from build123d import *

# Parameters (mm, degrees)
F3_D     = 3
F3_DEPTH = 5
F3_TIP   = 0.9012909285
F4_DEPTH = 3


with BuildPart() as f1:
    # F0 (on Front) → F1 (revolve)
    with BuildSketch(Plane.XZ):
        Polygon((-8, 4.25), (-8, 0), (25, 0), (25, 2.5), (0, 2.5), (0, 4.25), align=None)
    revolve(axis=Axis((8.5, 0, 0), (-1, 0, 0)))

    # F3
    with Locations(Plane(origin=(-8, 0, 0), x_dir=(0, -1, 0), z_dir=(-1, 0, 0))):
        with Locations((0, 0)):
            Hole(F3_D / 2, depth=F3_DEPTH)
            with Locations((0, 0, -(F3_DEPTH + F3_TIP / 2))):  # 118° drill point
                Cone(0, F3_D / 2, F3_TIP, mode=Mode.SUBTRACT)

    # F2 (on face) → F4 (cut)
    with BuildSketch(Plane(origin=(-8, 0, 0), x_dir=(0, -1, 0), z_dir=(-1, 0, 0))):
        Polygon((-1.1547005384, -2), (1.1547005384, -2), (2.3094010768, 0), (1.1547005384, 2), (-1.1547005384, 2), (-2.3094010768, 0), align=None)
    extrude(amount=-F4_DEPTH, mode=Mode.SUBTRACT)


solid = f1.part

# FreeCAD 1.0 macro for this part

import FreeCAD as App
import Part
import Sketcher
from FreeCAD import Vector
Q = App.Units.Quantity

doc = App.newDocument("Part")
body = doc.addObject("PartDesign::Body", "Body")

# Sketch on XZ plane
sketch1 = body.newObject("Sketcher::SketchObject", "Sketch")
sketch1.AttachmentSupport = (doc.getObject("XZ_Plane"), [""])
sketch1.MapMode = "FlatFace"
sketch1.addGeometry([
    Part.LineSegment(Vector(-8, 4.2, 0), Vector(-8, 0, 0)),  # 0
    Part.LineSegment(Vector(-8, 0, 0), Vector(25, 0, 0)),  # 1
    Part.LineSegment(Vector(25, 0, 0), Vector(25, 2.5, 0)),  # 2
    Part.LineSegment(Vector(25, 2.5, 0), Vector(0, 2.5, 0)),  # 3
    Part.LineSegment(Vector(0, 2.5, 0), Vector(0, 4.2, 0)),  # 4
    Part.LineSegment(Vector(0, 4.2, 0), Vector(-8, 4.2, 0)),  # 5
], False)
sketch1.addConstraint([
    Sketcher.Constraint("Coincident", 0, 2, 1, 1),
    Sketcher.Constraint("Coincident", 1, 2, 2, 1),
    Sketcher.Constraint("Coincident", 2, 2, 3, 1),
    Sketcher.Constraint("Coincident", 3, 2, 4, 1),
    Sketcher.Constraint("Coincident", 4, 2, 5, 1),
    Sketcher.Constraint("Coincident", 5, 2, 0, 1),
    Sketcher.Constraint("Vertical", 0),
    Sketcher.Constraint("Horizontal", 1),
    Sketcher.Constraint("Vertical", 2),
    Sketcher.Constraint("Horizontal", 3),
    Sketcher.Constraint("Vertical", 4),
    Sketcher.Constraint("Horizontal", 5),
    Sketcher.Constraint("PointOnObject", 0, 2, -1),
    Sketcher.Constraint("PointOnObject", 3, 2, -2),
    Sketcher.Constraint("DistanceX", 1, 1, 1, 2, 33.0),
    Sketcher.Constraint("DistanceX", 3, 2, 3, 1, 25.0),
    Sketcher.Constraint("DistanceY", 2, 1, 2, 2, 2.5),
    Sketcher.Constraint("DistanceY", 0, 2, 0, 1, 4.25),
])
revolution = body.newObject("PartDesign::Revolution", "Revolution")
revolution.Profile = sketch1
revolution.ReferenceAxis = (sketch1, ["H_Axis"])
revolution.Angle = 360

# Sketch on YZ plane
sketch2 = body.newObject("Sketcher::SketchObject", "Sketch001")
sketch2.AttachmentSupport = (doc.getObject("YZ_Plane"), [""])
sketch2.MapMode = "FlatFace"
sketch2.AttachmentOffset = App.Placement(Vector(0, 0, -8), App.Rotation())
sketch2.addGeometry(Part.Circle(Vector(0, 0, 0), Vector(0, 0, 1), 1.5), False)
sketch2.addConstraint([
    Sketcher.Constraint("Coincident", 0, 3, -1, 1),
    Sketcher.Constraint("Diameter", 0, 3.0),
])
doc.recompute()
hole = body.newObject("PartDesign::Hole", "Hole")
hole.Profile = sketch2
hole.ThreadType = "None"
hole.Diameter = 3
hole.DepthType = "Dimension"
hole.Depth = 5
hole.DrillPoint = "Angled"
hole.DrillPointAngle = 118
hole.Reversed = True

# Sketch on YZ plane
sketch3 = body.newObject("Sketcher::SketchObject", "Sketch002")
sketch3.AttachmentSupport = (doc.getObject("YZ_Plane"), [""])
sketch3.MapMode = "FlatFace"
sketch3.AttachmentOffset = App.Placement(Vector(0, 0, -8), App.Rotation())
sketch3.addGeometry([
    Part.LineSegment(Vector(1.2, -2, 0), Vector(-1.2, -2, 0)),  # 0
    Part.LineSegment(Vector(-1.2, -2, 0), Vector(-2.3, 0, 0)),  # 1
    Part.LineSegment(Vector(-2.3, 0, 0), Vector(-1.2, 2, 0)),  # 2
    Part.LineSegment(Vector(-1.2, 2, 0), Vector(1.2, 2, 0)),  # 3
    Part.LineSegment(Vector(1.2, 2, 0), Vector(2.3, 0, 0)),  # 4
    Part.LineSegment(Vector(2.3, 0, 0), Vector(1.2, -2, 0)),  # 5
], False)
sketch3.addConstraint([
    Sketcher.Constraint("Coincident", 0, 2, 1, 1),
    Sketcher.Constraint("Coincident", 1, 2, 2, 1),
    Sketcher.Constraint("Coincident", 2, 2, 3, 1),
    Sketcher.Constraint("Coincident", 3, 2, 4, 1),
    Sketcher.Constraint("Coincident", 4, 2, 5, 1),
    Sketcher.Constraint("Coincident", 5, 2, 0, 1),
    Sketcher.Constraint("Horizontal", 0),
    Sketcher.Constraint("Horizontal", 3),
    Sketcher.Constraint("Symmetric", 0, 2, 3, 2, -1, 1),
    Sketcher.Constraint("Symmetric", 1, 2, 4, 2, -1, 1),
    Sketcher.Constraint("PointOnObject", 1, 2, -1),
    Sketcher.Constraint("Parallel", 2, 5),
    Sketcher.Constraint("Vertical", 0, 2, 2, 2),
    Sketcher.Constraint("Angle", 1, Q("120 deg")),
    Sketcher.Constraint("DistanceY", 0, 2, -1, 1, 2.0),
    Sketcher.Constraint("DistanceX", 0, 2, 0, 1, 2.309401),
])
pocket1 = body.newObject("PartDesign::Pocket", "Pocket")
pocket1.Profile = sketch3
pocket1.Length = 3
pocket1.Reversed = True

doc.recompute()
